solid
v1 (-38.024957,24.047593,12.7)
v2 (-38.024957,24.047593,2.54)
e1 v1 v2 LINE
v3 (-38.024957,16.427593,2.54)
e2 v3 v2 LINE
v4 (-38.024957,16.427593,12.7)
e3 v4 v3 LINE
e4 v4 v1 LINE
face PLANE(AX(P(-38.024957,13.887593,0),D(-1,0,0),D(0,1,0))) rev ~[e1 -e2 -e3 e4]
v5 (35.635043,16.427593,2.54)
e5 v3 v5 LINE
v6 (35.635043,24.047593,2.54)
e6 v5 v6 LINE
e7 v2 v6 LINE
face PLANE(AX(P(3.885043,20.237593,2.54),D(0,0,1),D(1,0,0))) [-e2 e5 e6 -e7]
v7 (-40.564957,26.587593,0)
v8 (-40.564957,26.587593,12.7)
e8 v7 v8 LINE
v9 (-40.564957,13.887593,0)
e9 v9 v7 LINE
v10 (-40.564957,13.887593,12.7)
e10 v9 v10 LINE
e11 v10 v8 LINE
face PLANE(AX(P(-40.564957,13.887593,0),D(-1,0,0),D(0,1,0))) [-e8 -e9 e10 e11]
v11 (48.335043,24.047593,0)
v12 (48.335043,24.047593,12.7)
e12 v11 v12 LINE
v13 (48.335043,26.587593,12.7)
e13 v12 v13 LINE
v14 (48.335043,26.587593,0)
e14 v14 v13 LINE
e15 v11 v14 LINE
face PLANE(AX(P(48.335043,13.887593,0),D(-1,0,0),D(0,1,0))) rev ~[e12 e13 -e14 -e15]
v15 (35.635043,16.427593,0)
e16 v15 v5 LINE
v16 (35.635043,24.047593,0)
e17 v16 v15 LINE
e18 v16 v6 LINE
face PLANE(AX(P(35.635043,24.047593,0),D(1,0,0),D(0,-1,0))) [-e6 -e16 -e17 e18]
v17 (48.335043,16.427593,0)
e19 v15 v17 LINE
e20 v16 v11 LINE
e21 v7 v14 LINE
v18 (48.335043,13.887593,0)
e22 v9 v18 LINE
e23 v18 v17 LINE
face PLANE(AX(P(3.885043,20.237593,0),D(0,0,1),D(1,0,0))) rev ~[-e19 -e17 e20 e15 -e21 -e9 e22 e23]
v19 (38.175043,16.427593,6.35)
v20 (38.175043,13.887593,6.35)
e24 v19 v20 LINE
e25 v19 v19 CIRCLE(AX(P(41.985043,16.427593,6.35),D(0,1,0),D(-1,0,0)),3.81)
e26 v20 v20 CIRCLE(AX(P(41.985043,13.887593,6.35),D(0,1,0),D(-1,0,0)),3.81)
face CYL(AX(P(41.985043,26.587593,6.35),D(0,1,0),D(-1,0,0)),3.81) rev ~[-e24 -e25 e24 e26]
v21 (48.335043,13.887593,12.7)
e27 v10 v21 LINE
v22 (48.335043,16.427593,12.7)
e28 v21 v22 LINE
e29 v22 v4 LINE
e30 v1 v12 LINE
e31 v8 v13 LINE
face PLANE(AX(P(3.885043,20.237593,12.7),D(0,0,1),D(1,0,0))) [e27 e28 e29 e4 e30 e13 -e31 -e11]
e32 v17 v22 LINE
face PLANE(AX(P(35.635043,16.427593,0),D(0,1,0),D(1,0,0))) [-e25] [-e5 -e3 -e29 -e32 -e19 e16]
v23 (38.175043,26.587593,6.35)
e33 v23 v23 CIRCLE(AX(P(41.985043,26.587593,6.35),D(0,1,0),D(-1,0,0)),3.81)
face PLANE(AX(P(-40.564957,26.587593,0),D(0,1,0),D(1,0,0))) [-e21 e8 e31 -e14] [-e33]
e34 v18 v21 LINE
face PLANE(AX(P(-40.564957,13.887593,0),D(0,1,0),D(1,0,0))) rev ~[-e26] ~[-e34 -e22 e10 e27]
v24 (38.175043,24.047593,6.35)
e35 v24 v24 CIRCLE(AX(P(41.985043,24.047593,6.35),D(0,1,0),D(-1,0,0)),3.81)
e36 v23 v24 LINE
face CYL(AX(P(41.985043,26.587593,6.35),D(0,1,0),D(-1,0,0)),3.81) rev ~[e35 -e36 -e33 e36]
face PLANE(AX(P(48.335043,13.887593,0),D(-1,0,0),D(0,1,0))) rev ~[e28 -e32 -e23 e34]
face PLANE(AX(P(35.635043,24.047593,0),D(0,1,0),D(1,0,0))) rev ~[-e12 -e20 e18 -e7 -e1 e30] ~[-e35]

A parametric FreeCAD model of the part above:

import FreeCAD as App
import Part
import Sketcher

V = App.Vector
Q = App.Units.Quantity


def faces_at(feature, points):
    """Names of the faces that lie closest to the given points."""
    faces = feature.Shape.Faces
    near = lambda p: min(range(len(faces)), key=lambda i: faces[i].distToShape(Part.Vertex(*p))[0])
    return sorted({f"Face{near(p) + 1}" for p in points})

doc = App.newDocument("Part")
body = doc.addObject("PartDesign::Body", "Body")

# Sketch on XY plane
sketch1 = body.newObject("Sketcher::SketchObject", "Sketch")
sketch1.AttachmentSupport = (doc.getObject("XY_Plane"), [""])
sketch1.MapMode = "FlatFace"
sketch1.addGeometry([
    Part.LineSegment(V(-41, 27, 0), V(-41, 14, 0)),
    Part.LineSegment(V(-41, 14, 0), V(48, 14, 0)),
    Part.LineSegment(V(48, 14, 0), V(48, 27, 0)),
    Part.LineSegment(V(48, 27, 0), V(-41, 27, 0)),
], False)
sketch1.addConstraint([
    Sketcher.Constraint("Coincident", 0, 2, 1, 1),
    Sketcher.Constraint("Coincident", 1, 2, 2, 1),
    Sketcher.Constraint("Coincident", 2, 2, 3, 1),
    Sketcher.Constraint("Coincident", 3, 2, 0, 1),
    Sketcher.Constraint("Vertical", 0),
    Sketcher.Constraint("Horizontal", 1),
    Sketcher.Constraint("Vertical", 2),
    Sketcher.Constraint("Horizontal", 3),
    Sketcher.Constraint("DistanceX", 1, 1, 1, 2, Q("3.5 in")),
    Sketcher.Constraint("DistanceY", 0, 2, 0, 1, Q("0.5 in")),
    Sketcher.Constraint("DistanceX", 0, 2, -1, 1, Q("40.564957 mm")),
    Sketcher.Constraint("DistanceY", -1, 1, 0, 2, Q("13.887593 mm")),
])
pad1 = body.newObject("PartDesign::Pad", "Pad")
pad1.Profile = sketch1
pad1.Length = Q("0.5 in")

# Sketch on XY plane
sketch2 = body.newObject("Sketcher::SketchObject", "Sketch001")
sketch2.AttachmentSupport = (doc.getObject("XY_Plane"), [""])
sketch2.MapMode = "FlatFace"
sketch2.AttachmentOffset = App.Placement(V(0, 0, 0.5 * 25.4), App.Rotation())
sketch2.addGeometry([
    Part.LineSegment(V(-38, 24, 0), V(-38, 16, 0)),
    Part.LineSegment(V(-38, 16, 0), V(46, 16, 0)),
    Part.LineSegment(V(46, 16, 0), V(46, 24, 0)),
    Part.LineSegment(V(46, 24, 0), V(-38, 24, 0)),
], False)
sketch2.addConstraint([
    Sketcher.Constraint("Coincident", 0, 2, 1, 1),
    Sketcher.Constraint("Coincident", 1, 2, 2, 1),
    Sketcher.Constraint("Coincident", 2, 2, 3, 1),
    Sketcher.Constraint("Coincident", 3, 2, 0, 1),
    Sketcher.Constraint("Vertical", 0),
    Sketcher.Constraint("Horizontal", 1),
    Sketcher.Constraint("Vertical", 2),
    Sketcher.Constraint("Horizontal", 3),
    Sketcher.Constraint("DistanceX", 1, 1, 1, 2, Q("3.3 in")),
    Sketcher.Constraint("DistanceY", 0, 2, 0, 1, Q("0.3 in")),
    Sketcher.Constraint("DistanceX", 0, 2, -1, 1, Q("38.024957 mm")),
    Sketcher.Constraint("DistanceY", -1, 1, 0, 2, Q("16.427593 mm")),
])
pad2 = body.newObject("PartDesign::Pad", "Pad001")
pad2.Profile = sketch2
pad2.Length = Q("0.4 in")
pad2.Reversed = True
doc.recompute()

thickness = body.newObject("PartDesign::Thickness", "Thickness")
thickness.Base = (pad2, faces_at(pad2, [(3.885, 20.238, 12.7)]))
thickness.Value = Q("0.1 in")
thickness.Reversed = True
thickness.Join = "Arc"

# Sketch on XY plane
sketch3 = body.newObject("Sketcher::SketchObject", "Sketch002")
sketch3.AttachmentSupport = (doc.getObject("XY_Plane"), [""])
sketch3.MapMode = "FlatFace"
sketch3.addGeometry([
    Part.LineSegment(V(36, 16, 0), V(36, 24, 0)),
    Part.LineSegment(V(36, 24, 0), V(48, 24, 0)),
    Part.LineSegment(V(48, 24, 0), V(48, 16, 0)),
    Part.LineSegment(V(48, 16, 0), V(36, 16, 0)),
], False)
sketch3.addConstraint([
    Sketcher.Constraint("Coincident", 0, 2, 1, 1),
    Sketcher.Constraint("Coincident", 1, 2, 2, 1),
    Sketcher.Constraint("Coincident", 2, 2, 3, 1),
    Sketcher.Constraint("Coincident", 3, 2, 0, 1),
    Sketcher.Constraint("Vertical", 0),
    Sketcher.Constraint("Horizontal", 1),
    Sketcher.Constraint("Vertical", 2),
    Sketcher.Constraint("Horizontal", 3),
    Sketcher.Constraint("DistanceX", 1, 1, 1, 2, Q("0.5 in")),
    Sketcher.Constraint("DistanceY", 0, 1, 0, 2, Q("0.3 in")),
    Sketcher.Constraint("DistanceX", -1, 1, 0, 2, Q("35.635043 mm")),
    Sketcher.Constraint("DistanceY", -1, 1, 0, 2, Q("24.047593 mm")),
])
pocket1 = body.newObject("PartDesign::Pocket", "Pocket")
pocket1.Profile = sketch3
pocket1.Length = Q("1 in")
pocket1.Reversed = True

# Sketch on XZ plane
sketch4 = body.newObject("Sketcher::SketchObject", "Sketch003")
sketch4.AttachmentSupport = (doc.getObject("XZ_Plane"), [""])
sketch4.MapMode = "FlatFace"
sketch4.AttachmentOffset = App.Placement(V(0, 0, -26.587593), App.Rotation())
sketch4.addGeometry(Part.Circle(V(42, 6.3, 0), V(0, 0, 1), 3.8), False)
sketch4.addConstraint([
    Sketcher.Constraint("Diameter", 0, Q("0.3 in")),
    Sketcher.Constraint("DistanceY", -1, 1, 0, 3, Q("0.25 in")),
    Sketcher.Constraint("DistanceX", -1, 1, 0, 3, Q("41.985043 mm")),
])
pocket2 = body.newObject("PartDesign::Pocket", "Pocket001")
pocket2.Profile = sketch4
pocket2.Length = Q("1 in")
pocket2.Reversed = True

doc.recompute()
